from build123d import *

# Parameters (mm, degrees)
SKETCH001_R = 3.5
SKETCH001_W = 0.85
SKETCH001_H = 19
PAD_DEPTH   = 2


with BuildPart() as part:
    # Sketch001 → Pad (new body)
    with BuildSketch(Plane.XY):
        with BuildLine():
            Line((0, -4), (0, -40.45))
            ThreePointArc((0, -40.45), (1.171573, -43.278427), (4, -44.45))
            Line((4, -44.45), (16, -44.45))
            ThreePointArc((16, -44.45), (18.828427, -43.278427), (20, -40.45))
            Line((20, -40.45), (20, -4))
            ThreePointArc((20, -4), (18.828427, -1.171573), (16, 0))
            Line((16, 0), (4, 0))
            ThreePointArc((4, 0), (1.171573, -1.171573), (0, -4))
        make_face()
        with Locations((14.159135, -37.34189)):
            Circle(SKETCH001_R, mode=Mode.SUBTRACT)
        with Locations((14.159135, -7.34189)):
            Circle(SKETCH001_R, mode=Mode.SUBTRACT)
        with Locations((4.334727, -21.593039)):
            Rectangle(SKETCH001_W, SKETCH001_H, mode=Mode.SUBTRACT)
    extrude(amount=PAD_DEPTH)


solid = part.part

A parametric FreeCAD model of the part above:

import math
import FreeCAD as App
import Part
import Sketcher
from FreeCAD import Vector
Q = App.Units.Quantity


def add_polygon(sketch, points):
    """Adds a closed chain of lines whose ends are joined by coincident constraints."""
    first, n = sketch.GeometryCount, len(points)
    for a, b in zip(points, points[1:] + points[:1]):
        sketch.addGeometry(Part.LineSegment(App.Vector(*a, 0), App.Vector(*b, 0)), False)
    for i in range(n):
        sketch.addConstraint(Sketcher.Constraint("Coincident", first + i, 2, first + (i + 1) % n, 1))

doc = App.newDocument("Part")
params = doc.addObject("Spreadsheet::Sheet", "Params")
for row, (alias, value) in enumerate([
    ("sketch1_diameter", "7 mm"),
    ("sketch1_radius", "4 mm"),
    ("sketch1_width", "12 mm"),
    ("sketch1_height", "19 mm"),
    ("sketch1_width2", "0.85 mm"),
    ("pad1_length", "2 mm"),
], start=1):
    params.set(f"A{row}", alias)
    params.set(f"B{row}", "=" + value)
    params.setAlias(f"B{row}", alias)

body = doc.addObject("PartDesign::Body", "Body")

# Sketch on XY plane
sketch1 = doc.addObject("Sketcher::SketchObject", "Sketch")
body.addObject(sketch1)
sketch1.AttachmentSupport = (doc.XY_Plane, [""])
sketch1.MapMode = "FlatFace"
sketch1.addGeometry(Part.LineSegment(Vector(0, -4, 0), Vector(0, -40.5, 0)), False)  # 0
sketch1.addGeometry(Part.ArcOfCircle(Part.Circle(Vector(4, -40.4, 0), Vector(0, 0, 1), 4), math.radians(-180), math.radians(-90)), False)  # 1
sketch1.addGeometry(Part.LineSegment(Vector(4, -44.5, 0), Vector(16, -44.5, 0)), False)  # 2
sketch1.addGeometry(Part.ArcOfCircle(Part.Circle(Vector(16, -40.4, 0), Vector(0, 0, 1), 4), math.radians(-90), math.radians(0)), False)  # 3
sketch1.addGeometry(Part.LineSegment(Vector(20, -40.5, 0), Vector(20, -4, 0)), False)  # 4
sketch1.addGeometry(Part.ArcOfCircle(Part.Circle(Vector(16, -4, 0), Vector(0, 0, 1), 4), math.radians(0), math.radians(90)), False)  # 5
sketch1.addGeometry(Part.LineSegment(Vector(16, 0, 0), Vector(4, 0, 0)), False)  # 6
sketch1.addGeometry(Part.ArcOfCircle(Part.Circle(Vector(4, -4, 0), Vector(0, 0, 1), 4), math.radians(90), math.radians(180)), False)  # 7
sketch1.addGeometry(Part.Circle(Vector(14.2, -37.3, 0), Vector(0, 0, 1), 3.5), False)  # 8
add_polygon(sketch1, [(4.8, -31.1), (3.9, -31.1), (3.9, -12.1), (4.8, -12.1)])  # lines 9-12
sketch1.addGeometry(Part.Circle(Vector(14.2, -7.3, 0), Vector(0, 0, 1), 3.5), False)  # 13
sketch1.addConstraint(Sketcher.Constraint("Tangent", 0, 2, 1, 1))
sketch1.addConstraint(Sketcher.Constraint("Tangent", 1, 2, 2, 1))
sketch1.addConstraint(Sketcher.Constraint("Tangent", 2, 2, 3, 1))
sketch1.addConstraint(Sketcher.Constraint("Tangent", 3, 2, 4, 1))
sketch1.addConstraint(Sketcher.Constraint("Tangent", 4, 2, 5, 1))
sketch1.addConstraint(Sketcher.Constraint("Tangent", 5, 2, 6, 1))
sketch1.addConstraint(Sketcher.Constraint("Tangent", 6, 2, 7, 1))
sketch1.addConstraint(Sketcher.Constraint("Tangent", 7, 2, 0, 1))
sketch1.addConstraint(Sketcher.Constraint("Vertical", 0))
sketch1.addConstraint(Sketcher.Constraint("Horizontal", 2))
sketch1.addConstraint(Sketcher.Constraint("Vertical", 4))
sketch1.addConstraint(Sketcher.Constraint("Horizontal", 6))
sketch1.addConstraint(Sketcher.Constraint("Horizontal", 9))
sketch1.addConstraint(Sketcher.Constraint("Vertical", 10))
sketch1.addConstraint(Sketcher.Constraint("Horizontal", 11))
sketch1.addConstraint(Sketcher.Constraint("Vertical", 12))
sketch1.addConstraint(Sketcher.Constraint("Equal", 1, 3))
sketch1.addConstraint(Sketcher.Constraint("Equal", 3, 5))
sketch1.addConstraint(Sketcher.Constraint("Equal", 5, 7))
sketch1.addConstraint(Sketcher.Constraint("Equal", 8, 13))
sketch1.addConstraint(Sketcher.Constraint("PointOnObject", 0, 2, -2))
sketch1.addConstraint(Sketcher.Constraint("PointOnObject", 5, 2, -1))
sketch1.addConstraint(Sketcher.Constraint("Vertical", 8, 3, 13, 3))
sketch1.addConstraint(Sketcher.Constraint("Diameter", 8, Q("7 mm")))
sketch1.addConstraint(Sketcher.Constraint("Radius", 1, Q("4 mm")))
sketch1.addConstraint(Sketcher.Constraint("DistanceX", 2, 1, 2, 2, Q("12 mm")))
sketch1.addConstraint(Sketcher.Constraint("DistanceY", 10, 1, 10, 2, Q("19 mm")))
sketch1.addConstraint(Sketcher.Constraint("DistanceY", 8, 3, 13, 3, Q("30 mm")))
sketch1.addConstraint(Sketcher.Constraint("DistanceX", 9, 2, 9, 1, Q("0.85 mm")))
sketch1.addConstraint(Sketcher.Constraint("DistanceY", 0, 2, 0, 1, Q("36.45 mm")))
sketch1.addConstraint(Sketcher.Constraint("DistanceY", 8, 3, -1, 1, Q("37.34189 mm")))
sketch1.addConstraint(Sketcher.Constraint("DistanceY", 9, 2, -1, 1, Q("31.093039 mm")))
sketch1.addConstraint(Sketcher.Constraint("DistanceX", -1, 1, 8, 3, Q("14.159135 mm")))
sketch1.addConstraint(Sketcher.Constraint("DistanceX", -1, 1, 9, 2, Q("3.909727 mm")))
sketch1.setExpression("Constraints[27]", "Params.sketch1_diameter")
sketch1.setExpression("Constraints[28]", "Params.sketch1_radius")
sketch1.setExpression("Constraints[29]", "Params.sketch1_width")
sketch1.setExpression("Constraints[30]", "Params.sketch1_height")
sketch1.setExpression("Constraints[32]", "Params.sketch1_width2")
pad1 = doc.addObject("PartDesign::Pad", "Pad")
body.addObject(pad1)
pad1.Profile = sketch1
pad1.setExpression("Length", "Params.pad1_length")

doc.recompute()
